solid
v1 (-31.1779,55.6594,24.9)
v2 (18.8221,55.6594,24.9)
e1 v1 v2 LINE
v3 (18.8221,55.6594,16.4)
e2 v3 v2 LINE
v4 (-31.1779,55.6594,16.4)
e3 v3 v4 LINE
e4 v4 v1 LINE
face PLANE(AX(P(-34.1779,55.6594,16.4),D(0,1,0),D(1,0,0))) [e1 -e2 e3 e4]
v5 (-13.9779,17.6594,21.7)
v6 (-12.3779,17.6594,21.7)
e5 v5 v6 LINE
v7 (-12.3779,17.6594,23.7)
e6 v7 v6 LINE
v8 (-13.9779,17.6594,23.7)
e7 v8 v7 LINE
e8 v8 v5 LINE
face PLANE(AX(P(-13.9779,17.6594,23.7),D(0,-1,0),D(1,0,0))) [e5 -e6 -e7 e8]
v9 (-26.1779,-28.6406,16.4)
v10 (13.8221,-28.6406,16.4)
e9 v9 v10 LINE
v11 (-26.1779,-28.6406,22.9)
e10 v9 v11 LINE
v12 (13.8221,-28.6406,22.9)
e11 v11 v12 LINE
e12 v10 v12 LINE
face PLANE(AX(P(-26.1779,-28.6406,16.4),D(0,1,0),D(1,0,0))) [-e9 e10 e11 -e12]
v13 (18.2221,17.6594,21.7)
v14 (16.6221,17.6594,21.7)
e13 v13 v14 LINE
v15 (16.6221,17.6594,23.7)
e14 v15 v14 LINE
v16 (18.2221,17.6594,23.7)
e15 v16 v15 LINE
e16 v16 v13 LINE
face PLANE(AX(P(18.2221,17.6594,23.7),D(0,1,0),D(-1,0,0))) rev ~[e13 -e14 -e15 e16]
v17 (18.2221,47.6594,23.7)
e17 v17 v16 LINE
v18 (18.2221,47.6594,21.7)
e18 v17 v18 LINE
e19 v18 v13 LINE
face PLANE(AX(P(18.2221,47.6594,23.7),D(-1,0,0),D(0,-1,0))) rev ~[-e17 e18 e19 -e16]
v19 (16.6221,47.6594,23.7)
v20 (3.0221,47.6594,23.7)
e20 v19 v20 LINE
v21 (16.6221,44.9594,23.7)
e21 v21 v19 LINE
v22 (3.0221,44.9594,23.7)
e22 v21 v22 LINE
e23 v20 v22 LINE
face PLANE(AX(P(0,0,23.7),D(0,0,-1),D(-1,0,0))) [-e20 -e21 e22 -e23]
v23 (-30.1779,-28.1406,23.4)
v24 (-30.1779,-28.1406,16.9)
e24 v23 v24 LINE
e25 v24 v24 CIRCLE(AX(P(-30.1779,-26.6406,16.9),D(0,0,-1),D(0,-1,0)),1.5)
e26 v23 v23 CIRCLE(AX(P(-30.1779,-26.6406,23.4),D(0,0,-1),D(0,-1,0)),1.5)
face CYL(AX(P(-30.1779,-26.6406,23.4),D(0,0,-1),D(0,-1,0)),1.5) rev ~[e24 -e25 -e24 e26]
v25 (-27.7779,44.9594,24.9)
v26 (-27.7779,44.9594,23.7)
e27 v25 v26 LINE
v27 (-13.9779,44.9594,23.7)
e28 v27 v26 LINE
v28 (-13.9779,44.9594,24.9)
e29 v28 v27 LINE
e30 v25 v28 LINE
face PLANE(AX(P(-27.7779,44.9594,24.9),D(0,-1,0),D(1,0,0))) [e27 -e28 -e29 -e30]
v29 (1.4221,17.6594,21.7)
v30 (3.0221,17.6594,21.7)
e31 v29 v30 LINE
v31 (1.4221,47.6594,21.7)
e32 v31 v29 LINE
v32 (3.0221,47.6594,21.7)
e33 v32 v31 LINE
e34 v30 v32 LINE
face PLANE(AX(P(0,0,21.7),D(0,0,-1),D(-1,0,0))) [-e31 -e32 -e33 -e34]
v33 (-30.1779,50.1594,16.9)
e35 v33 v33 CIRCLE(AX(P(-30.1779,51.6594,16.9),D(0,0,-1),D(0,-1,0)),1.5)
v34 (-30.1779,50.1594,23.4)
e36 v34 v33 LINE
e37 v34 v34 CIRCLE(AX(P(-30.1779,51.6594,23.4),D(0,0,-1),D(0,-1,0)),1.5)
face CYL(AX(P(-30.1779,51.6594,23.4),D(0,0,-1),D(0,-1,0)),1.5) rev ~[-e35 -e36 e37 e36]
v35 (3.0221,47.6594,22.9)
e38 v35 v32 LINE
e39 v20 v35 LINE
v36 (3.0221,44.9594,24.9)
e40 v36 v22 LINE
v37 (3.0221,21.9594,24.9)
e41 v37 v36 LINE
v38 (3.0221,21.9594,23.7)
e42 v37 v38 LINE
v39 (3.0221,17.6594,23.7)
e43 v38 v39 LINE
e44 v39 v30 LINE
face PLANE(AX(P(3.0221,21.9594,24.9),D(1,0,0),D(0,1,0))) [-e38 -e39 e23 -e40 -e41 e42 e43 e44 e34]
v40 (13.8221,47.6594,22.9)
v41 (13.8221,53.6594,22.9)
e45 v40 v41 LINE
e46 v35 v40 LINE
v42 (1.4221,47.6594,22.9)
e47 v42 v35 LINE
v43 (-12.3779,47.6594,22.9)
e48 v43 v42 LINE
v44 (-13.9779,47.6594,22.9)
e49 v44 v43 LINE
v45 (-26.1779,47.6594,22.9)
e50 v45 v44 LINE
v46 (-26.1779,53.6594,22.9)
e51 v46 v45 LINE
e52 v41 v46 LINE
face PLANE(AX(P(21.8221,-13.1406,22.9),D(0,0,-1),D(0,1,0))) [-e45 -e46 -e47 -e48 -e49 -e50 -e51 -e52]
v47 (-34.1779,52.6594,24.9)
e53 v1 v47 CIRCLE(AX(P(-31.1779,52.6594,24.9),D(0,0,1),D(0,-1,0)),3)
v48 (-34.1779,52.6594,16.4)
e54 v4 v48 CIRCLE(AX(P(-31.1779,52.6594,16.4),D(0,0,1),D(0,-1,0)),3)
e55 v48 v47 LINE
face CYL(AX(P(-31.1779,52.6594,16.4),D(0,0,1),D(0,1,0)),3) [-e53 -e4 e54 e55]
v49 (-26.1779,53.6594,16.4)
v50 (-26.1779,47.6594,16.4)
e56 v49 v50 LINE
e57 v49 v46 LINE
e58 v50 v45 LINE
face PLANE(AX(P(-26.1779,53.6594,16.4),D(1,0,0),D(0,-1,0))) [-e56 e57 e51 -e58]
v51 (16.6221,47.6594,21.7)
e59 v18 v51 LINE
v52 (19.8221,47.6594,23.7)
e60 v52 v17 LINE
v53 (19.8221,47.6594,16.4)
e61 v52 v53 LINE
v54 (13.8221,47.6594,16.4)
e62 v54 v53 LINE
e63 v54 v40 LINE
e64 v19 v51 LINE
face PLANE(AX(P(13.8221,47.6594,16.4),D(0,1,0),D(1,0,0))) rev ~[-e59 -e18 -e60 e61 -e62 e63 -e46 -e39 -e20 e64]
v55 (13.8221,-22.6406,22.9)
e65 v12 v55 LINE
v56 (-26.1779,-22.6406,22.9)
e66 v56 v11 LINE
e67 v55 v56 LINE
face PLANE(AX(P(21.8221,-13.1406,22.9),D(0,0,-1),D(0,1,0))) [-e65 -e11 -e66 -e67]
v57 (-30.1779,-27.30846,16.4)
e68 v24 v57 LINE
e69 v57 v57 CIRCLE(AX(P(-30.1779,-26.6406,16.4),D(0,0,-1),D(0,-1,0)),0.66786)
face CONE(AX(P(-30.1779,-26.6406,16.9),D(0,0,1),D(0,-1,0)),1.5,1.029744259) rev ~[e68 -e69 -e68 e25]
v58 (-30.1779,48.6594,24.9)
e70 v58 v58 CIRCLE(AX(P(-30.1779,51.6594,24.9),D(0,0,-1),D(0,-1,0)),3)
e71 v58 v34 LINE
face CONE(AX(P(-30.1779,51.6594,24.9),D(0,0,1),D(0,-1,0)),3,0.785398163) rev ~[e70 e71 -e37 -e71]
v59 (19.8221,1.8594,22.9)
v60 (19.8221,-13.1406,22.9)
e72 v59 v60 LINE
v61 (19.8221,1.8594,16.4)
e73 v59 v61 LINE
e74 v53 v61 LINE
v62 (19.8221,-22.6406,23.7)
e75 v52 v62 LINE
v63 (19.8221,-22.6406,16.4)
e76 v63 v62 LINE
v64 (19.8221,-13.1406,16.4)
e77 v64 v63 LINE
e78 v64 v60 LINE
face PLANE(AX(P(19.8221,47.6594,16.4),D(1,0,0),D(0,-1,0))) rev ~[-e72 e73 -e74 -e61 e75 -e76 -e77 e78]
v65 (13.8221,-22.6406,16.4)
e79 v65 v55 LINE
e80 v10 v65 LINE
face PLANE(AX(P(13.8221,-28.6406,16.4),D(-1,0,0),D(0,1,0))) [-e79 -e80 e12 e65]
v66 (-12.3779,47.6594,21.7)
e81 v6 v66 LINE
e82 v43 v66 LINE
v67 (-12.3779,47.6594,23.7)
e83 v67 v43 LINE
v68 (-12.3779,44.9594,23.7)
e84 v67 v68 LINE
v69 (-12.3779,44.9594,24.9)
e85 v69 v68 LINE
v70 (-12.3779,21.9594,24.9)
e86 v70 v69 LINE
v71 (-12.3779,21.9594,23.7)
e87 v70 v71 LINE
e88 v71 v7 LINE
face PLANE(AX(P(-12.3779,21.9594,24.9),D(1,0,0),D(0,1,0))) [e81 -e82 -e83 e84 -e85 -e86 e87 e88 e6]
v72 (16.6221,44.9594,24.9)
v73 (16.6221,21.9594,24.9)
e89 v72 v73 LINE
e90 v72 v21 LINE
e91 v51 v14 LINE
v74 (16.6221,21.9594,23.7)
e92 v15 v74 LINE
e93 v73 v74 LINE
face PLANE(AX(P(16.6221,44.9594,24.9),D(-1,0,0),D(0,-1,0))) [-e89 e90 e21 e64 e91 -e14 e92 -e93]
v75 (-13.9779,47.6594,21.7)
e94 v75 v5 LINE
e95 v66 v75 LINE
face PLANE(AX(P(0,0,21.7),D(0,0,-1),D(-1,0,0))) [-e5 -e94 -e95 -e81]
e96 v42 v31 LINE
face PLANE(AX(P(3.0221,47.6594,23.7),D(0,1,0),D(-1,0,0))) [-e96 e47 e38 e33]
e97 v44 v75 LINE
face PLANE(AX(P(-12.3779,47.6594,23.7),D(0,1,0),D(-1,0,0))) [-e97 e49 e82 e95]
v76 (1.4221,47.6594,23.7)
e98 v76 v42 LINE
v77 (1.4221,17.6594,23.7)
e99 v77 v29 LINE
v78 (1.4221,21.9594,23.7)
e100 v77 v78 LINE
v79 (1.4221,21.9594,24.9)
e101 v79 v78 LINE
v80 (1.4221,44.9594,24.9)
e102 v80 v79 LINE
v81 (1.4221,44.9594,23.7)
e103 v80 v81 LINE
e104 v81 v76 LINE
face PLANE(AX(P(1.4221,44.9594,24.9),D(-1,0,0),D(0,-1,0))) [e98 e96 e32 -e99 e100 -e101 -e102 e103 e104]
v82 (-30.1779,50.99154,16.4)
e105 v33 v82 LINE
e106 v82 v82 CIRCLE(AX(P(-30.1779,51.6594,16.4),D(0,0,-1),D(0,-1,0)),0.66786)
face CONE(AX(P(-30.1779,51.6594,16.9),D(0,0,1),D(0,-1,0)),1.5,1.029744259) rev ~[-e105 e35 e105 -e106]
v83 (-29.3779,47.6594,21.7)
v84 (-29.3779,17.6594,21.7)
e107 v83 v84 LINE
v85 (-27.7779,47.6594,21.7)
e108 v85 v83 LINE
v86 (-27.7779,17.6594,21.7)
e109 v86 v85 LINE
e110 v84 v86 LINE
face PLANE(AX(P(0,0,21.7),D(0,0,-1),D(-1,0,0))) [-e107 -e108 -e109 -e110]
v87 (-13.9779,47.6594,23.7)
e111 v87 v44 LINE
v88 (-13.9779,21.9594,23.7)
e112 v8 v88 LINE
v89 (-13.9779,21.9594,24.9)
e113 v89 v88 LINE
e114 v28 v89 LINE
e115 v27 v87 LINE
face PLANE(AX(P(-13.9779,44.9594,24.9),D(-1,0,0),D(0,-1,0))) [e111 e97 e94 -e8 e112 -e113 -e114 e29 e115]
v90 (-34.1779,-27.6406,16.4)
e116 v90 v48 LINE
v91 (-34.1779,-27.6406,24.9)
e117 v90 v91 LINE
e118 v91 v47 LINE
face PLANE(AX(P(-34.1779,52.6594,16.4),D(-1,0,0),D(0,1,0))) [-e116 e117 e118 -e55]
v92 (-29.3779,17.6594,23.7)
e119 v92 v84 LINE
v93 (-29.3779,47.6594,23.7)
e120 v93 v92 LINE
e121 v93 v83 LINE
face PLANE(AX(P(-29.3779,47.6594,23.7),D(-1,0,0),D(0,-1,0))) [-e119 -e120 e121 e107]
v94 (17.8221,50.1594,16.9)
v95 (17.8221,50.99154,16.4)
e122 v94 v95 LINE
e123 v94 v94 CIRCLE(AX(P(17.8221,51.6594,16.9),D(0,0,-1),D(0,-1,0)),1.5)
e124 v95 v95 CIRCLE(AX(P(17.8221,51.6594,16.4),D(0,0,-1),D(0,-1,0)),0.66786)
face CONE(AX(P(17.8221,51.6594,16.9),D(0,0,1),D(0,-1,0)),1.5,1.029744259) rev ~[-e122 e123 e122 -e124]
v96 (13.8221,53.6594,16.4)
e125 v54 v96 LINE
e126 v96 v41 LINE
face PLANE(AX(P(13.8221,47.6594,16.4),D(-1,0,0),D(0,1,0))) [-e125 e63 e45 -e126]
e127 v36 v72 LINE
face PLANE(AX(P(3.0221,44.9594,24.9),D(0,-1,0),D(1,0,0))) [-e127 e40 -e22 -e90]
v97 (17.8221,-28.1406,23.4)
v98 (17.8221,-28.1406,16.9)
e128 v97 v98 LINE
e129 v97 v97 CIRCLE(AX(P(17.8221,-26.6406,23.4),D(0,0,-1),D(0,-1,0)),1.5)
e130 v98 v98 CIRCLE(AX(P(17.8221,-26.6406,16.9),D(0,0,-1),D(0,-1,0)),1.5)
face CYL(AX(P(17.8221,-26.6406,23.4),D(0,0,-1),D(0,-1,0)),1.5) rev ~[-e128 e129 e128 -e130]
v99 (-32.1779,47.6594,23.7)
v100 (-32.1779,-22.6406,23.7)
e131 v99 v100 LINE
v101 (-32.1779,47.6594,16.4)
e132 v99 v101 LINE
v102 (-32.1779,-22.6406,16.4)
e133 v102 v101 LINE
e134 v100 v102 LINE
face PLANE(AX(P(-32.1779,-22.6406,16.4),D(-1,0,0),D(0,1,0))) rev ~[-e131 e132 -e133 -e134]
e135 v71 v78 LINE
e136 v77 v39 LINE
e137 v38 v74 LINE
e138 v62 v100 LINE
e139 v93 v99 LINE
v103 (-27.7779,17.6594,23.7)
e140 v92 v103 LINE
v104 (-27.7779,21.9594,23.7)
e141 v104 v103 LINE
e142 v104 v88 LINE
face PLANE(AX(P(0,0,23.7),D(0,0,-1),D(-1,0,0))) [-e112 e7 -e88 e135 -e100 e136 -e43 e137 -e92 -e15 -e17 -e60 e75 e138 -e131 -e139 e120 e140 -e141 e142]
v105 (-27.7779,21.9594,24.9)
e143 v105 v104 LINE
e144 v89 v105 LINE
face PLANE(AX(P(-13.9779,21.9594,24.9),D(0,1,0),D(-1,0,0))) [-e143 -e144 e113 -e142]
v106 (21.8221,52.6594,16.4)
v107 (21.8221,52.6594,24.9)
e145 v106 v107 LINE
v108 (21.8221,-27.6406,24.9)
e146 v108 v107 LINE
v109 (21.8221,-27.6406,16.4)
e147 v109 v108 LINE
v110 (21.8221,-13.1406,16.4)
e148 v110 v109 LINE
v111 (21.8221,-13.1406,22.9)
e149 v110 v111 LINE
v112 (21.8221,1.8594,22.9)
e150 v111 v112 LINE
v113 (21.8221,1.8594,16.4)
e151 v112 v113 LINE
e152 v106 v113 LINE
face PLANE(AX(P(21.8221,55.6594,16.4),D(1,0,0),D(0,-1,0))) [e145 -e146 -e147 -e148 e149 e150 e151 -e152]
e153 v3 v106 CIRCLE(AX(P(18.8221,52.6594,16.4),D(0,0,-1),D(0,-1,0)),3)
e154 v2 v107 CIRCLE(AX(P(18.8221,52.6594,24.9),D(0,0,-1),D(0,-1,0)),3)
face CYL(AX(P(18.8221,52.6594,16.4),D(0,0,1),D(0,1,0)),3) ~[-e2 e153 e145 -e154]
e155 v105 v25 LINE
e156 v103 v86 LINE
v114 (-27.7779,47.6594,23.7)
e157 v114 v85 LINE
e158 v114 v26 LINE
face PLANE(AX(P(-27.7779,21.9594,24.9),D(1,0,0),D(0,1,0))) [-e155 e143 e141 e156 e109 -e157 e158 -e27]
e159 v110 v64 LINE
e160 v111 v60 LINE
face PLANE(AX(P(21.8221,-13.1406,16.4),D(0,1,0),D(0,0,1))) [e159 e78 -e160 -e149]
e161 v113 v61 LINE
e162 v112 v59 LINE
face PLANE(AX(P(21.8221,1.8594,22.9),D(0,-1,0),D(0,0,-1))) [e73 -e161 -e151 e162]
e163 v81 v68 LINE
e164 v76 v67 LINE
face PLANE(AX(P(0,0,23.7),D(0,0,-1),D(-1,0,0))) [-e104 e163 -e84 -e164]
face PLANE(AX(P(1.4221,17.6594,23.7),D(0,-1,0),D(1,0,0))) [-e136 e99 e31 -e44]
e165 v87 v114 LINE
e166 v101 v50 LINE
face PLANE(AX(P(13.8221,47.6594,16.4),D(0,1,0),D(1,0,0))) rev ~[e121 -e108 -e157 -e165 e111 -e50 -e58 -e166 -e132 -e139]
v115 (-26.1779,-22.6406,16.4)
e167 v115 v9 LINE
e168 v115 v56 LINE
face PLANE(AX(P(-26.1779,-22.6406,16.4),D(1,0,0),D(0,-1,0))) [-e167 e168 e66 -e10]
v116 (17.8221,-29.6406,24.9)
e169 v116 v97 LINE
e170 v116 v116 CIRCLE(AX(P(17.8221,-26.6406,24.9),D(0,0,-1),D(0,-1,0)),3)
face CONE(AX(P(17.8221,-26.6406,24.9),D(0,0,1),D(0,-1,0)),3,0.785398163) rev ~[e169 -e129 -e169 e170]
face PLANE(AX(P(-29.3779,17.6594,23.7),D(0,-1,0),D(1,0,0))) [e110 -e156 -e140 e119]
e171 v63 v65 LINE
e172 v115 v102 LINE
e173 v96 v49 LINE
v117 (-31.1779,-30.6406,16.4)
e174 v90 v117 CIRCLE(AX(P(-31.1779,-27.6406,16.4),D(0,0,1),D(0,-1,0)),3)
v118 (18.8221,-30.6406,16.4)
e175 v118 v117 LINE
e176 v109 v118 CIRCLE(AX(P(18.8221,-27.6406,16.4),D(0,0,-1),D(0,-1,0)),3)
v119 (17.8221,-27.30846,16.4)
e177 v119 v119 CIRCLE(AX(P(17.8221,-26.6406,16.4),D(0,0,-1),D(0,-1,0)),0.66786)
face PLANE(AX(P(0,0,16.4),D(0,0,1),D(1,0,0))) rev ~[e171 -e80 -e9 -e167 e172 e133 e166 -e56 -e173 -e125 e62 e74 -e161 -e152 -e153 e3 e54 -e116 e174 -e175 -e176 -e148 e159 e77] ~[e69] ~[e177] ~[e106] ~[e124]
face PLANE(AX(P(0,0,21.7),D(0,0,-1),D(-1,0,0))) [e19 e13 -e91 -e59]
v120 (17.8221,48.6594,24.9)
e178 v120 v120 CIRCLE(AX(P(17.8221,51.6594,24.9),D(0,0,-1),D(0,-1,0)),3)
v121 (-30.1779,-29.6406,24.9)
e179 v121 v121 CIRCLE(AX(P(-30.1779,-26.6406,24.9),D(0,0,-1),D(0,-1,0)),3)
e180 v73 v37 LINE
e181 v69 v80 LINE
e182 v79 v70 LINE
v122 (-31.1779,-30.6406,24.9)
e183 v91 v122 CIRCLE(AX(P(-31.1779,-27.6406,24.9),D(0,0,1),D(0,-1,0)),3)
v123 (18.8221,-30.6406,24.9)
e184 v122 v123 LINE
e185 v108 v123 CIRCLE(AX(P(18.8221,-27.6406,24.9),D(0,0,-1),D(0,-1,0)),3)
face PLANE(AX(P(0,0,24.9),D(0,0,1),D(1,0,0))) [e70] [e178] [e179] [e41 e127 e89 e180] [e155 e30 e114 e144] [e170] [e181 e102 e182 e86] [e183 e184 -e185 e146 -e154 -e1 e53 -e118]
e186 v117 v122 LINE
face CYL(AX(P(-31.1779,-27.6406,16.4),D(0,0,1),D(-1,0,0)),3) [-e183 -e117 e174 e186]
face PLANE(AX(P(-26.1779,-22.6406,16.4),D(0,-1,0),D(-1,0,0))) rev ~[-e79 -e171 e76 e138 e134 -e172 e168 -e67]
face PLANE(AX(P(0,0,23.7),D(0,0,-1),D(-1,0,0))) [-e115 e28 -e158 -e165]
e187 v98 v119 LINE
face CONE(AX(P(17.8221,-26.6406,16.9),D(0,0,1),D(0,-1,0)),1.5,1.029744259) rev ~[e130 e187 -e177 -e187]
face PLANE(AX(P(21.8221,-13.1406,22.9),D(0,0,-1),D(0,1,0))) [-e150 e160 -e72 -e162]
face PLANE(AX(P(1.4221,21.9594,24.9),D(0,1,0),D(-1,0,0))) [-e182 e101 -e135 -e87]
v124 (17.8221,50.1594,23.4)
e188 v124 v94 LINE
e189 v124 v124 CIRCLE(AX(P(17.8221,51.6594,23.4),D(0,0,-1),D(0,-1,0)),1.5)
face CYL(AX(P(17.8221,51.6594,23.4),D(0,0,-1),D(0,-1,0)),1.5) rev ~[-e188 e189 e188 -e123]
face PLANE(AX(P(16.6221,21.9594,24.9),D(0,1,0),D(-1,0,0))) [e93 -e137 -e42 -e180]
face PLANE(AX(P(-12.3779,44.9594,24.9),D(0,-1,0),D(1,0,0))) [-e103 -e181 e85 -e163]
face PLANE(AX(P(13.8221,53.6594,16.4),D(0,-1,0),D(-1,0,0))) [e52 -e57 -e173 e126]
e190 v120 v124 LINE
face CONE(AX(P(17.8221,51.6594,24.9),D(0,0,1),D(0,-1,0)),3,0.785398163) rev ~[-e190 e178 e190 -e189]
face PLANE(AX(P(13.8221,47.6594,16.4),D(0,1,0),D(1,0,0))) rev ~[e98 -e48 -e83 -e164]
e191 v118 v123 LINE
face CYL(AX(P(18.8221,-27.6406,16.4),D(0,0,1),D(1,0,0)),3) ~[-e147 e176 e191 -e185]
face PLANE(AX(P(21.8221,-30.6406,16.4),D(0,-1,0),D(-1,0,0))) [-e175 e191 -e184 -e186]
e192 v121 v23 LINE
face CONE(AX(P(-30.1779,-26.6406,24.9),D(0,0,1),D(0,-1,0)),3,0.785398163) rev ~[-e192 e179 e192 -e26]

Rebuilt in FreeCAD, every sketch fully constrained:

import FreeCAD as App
import Part
import Sketcher


def edges_at(feature, points):
    """Names of the edges that pass closest to the given points."""
    edges = feature.Shape.Edges
    near = lambda p: min(range(len(edges)), key=lambda i: edges[i].distToShape(Part.Vertex(*p))[0])
    return sorted({f"Edge{near(p) + 1}" for p in points})


def add_polygon(sketch, points):
    """Adds a closed chain of lines whose ends are joined by coincident constraints."""
    first, n = sketch.GeometryCount, len(points)
    for a, b in zip(points, points[1:] + points[:1]):
        sketch.addGeometry(Part.LineSegment(App.Vector(*a, 0), App.Vector(*b, 0)), False)
    for i in range(n):
        sketch.addConstraint(Sketcher.Constraint("Coincident", first + i, 2, first + (i + 1) % n, 1))

doc = App.newDocument("Part")
body = doc.addObject("PartDesign::Body", "Body")

# Sketch on XY plane
sketch1 = doc.addObject("Sketcher::SketchObject", "Sketch")
body.addObject(sketch1)
sketch1.AttachmentSupport = (doc.XY_Plane, [""])
sketch1.MapMode = "FlatFace"
add_polygon(sketch1, [(22, 56), (-34, 56), (-34, -31), (22, -31)])  # lines 0-3
sketch1.addConstraint([
    Sketcher.Constraint("Horizontal", 0),
    Sketcher.Constraint("Vertical", 1),
    Sketcher.Constraint("Horizontal", 2),
    Sketcher.Constraint("Vertical", 3),
    Sketcher.Constraint("DistanceX", 0, 2, 0, 1, 56.0),
    Sketcher.Constraint("DistanceY", 1, 2, 1, 1, 86.3),
    Sketcher.Constraint("DistanceX", 0, 2, -1, 1, 34.178),
    Sketcher.Constraint("DistanceY", -1, 1, 0, 2, 55.6594),
])
pad1 = doc.addObject("PartDesign::Pad", "Pad")
body.addObject(pad1)
pad1.Profile = sketch1
pad1.Length = 2

# Sketch on XY plane
sketch2 = doc.addObject("Sketcher::SketchObject", "Sketch001")
body.addObject(sketch2)
sketch2.AttachmentSupport = (doc.XY_Plane, [""])
sketch2.MapMode = "FlatFace"
sketch2.AttachmentOffset = App.Placement(App.Vector(0, 0, 2), App.Rotation())
add_polygon(sketch2, [(22, 56), (-34, 56), (-34, -31), (22, -31)])  # lines 0-3
add_polygon(sketch2, [(-32, -29), (-32, 54), (20, 54), (20, -29)])  # lines 4-7
sketch2.addConstraint([
    Sketcher.Constraint("Horizontal", 0),
    Sketcher.Constraint("Vertical", 1),
    Sketcher.Constraint("Horizontal", 2),
    Sketcher.Constraint("Vertical", 3),
    Sketcher.Constraint("Vertical", 4),
    Sketcher.Constraint("Horizontal", 5),
    Sketcher.Constraint("Vertical", 6),
    Sketcher.Constraint("Horizontal", 7),
    Sketcher.Constraint("DistanceX", 0, 2, 4, 2, 2.0),
    Sketcher.Constraint("DistanceY", 4, 2, 0, 2, 2.0),
    Sketcher.Constraint("DistanceX", 5, 2, 3, 2, 2.0),
    Sketcher.Constraint("DistanceY", 2, 2, 6, 2, 2.0),
    Sketcher.Constraint("DistanceX", 0, 2, 0, 1, 56.0),
    Sketcher.Constraint("DistanceY", 1, 2, 1, 1, 86.3),
    Sketcher.Constraint("DistanceX", 0, 2, -1, 1, 34.178),
    Sketcher.Constraint("DistanceY", -1, 1, 0, 2, 55.6594),
])
pad2 = doc.addObject("PartDesign::Pad", "Pad001")
body.addObject(pad2)
pad2.Profile = sketch2
pad2.Length = 14.4

# Sketch on XY plane
sketch3 = doc.addObject("Sketcher::SketchObject", "Sketch002")
body.addObject(sketch3)
sketch3.AttachmentSupport = (doc.XY_Plane, [""])
sketch3.MapMode = "FlatFace"
sketch3.AttachmentOffset = App.Placement(App.Vector(0, 0, 2), App.Rotation())
add_polygon(sketch3, [(-26, 56), (-34, 56), (-34, 48), (-26, 48)])  # lines 0-3
add_polygon(sketch3, [(22, 48), (22, 56), (14, 56), (14, 48)])  # lines 4-7
add_polygon(sketch3, [(-34, -23), (-34, -31), (-26, -31), (-26, -23)])  # lines 8-11
add_polygon(sketch3, [(14, -23), (14, -31), (22, -31), (22, -23)])  # lines 12-15
sketch3.addConstraint([
    Sketcher.Constraint("Horizontal", 0),
    Sketcher.Constraint("Vertical", 1),
    Sketcher.Constraint("Horizontal", 2),
    Sketcher.Constraint("Vertical", 3),
    Sketcher.Constraint("Vertical", 4),
    Sketcher.Constraint("Horizontal", 5),
    Sketcher.Constraint("Vertical", 6),
    Sketcher.Constraint("Horizontal", 7),
    Sketcher.Constraint("Vertical", 8),
    Sketcher.Constraint("Horizontal", 9),
    Sketcher.Constraint("Vertical", 10),
    Sketcher.Constraint("Horizontal", 11),
    Sketcher.Constraint("Vertical", 12),
    Sketcher.Constraint("Horizontal", 13),
    Sketcher.Constraint("Vertical", 14),
    Sketcher.Constraint("Horizontal", 15),
    Sketcher.Constraint("Horizontal", 3, 2, 4, 2),
    Sketcher.Constraint("Horizontal", 2, 2, 6, 2),
    Sketcher.Constraint("Horizontal", 9, 2, 12, 2),
    Sketcher.Constraint("Horizontal", 11, 2, 14, 2),
    Sketcher.Constraint("Vertical", 1, 2, 8, 2),
    Sketcher.Constraint("Vertical", 3, 2, 9, 2),
    Sketcher.Constraint("Vertical", 6, 2, 12, 2),
    Sketcher.Constraint("Vertical", 7, 2, 13, 2),
    Sketcher.Constraint("Equal", 2, 5),
    Sketcher.Constraint("Equal", 15, 1),
    Sketcher.Constraint("Equal", 6, 8),
    Sketcher.Constraint("DistanceX", 0, 2, 0, 1, 8.0),
    Sketcher.Constraint("DistanceX", 3, 2, 4, 2, 48.0),
    Sketcher.Constraint("DistanceY", 8, 2, 1, 2, 78.3),
    Sketcher.Constraint("DistanceX", 0, 2, -1, 1, 34.178),
    Sketcher.Constraint("DistanceY", -1, 1, 0, 2, 55.6594),
])
pad3 = doc.addObject("PartDesign::Pad", "Pad002")
body.addObject(pad3)
pad3.Profile = sketch3
pad3.Length = 14.4

# Sketch on XY plane
sketch4 = doc.addObject("Sketcher::SketchObject", "Sketch003")
body.addObject(sketch4)
sketch4.AttachmentSupport = (doc.XY_Plane, [""])
sketch4.MapMode = "FlatFace"
sketch4.AttachmentOffset = App.Placement(App.Vector(0, 0, 16.4), App.Rotation())
sketch4.addGeometry([
    Part.Circle(App.Vector(-30.2, 51.7, 0), App.Vector(0, 0, 1), 1.5),
    Part.Circle(App.Vector(17.8, 51.7, 0), App.Vector(0, 0, 1), 1.5),
    Part.Circle(App.Vector(-30.6, -26.6, 0), App.Vector(0, 0, 1), 1.5),
    Part.Circle(App.Vector(17.8, -26.6, 0), App.Vector(0, 0, 1), 1.5),
], False)
sketch4.addConstraint([
    Sketcher.Constraint("Equal", 0, 1),
    Sketcher.Constraint("Equal", 1, 2),
    Sketcher.Constraint("Equal", 2, 3),
    Sketcher.Constraint("Horizontal", 0, 3, 1, 3),
    Sketcher.Constraint("Horizontal", 2, 3, 3, 3),
    Sketcher.Constraint("Vertical", 1, 3, 3, 3),
    Sketcher.Constraint("Diameter", 0, 3.0),
    Sketcher.Constraint("DistanceX", 0, 3, 1, 3, 48.0),
    Sketcher.Constraint("DistanceY", 2, 3, 0, 3, 78.3),
    Sketcher.Constraint("DistanceX", 0, 3, -1, 1, 30.178),
    Sketcher.Constraint("DistanceY", -1, 1, 0, 3, 51.6594),
    Sketcher.Constraint("DistanceX", 2, 3, -1, 1, 30.5754),
])
doc.recompute()
hole = doc.addObject("PartDesign::Hole", "Hole")
body.addObject(hole)
hole.Profile = sketch4
hole.ThreadType = "None"
hole.Diameter = 3
hole.DepthType = "Dimension"
hole.Depth = 6
hole.DrillPoint = "Angled"
hole.DrillPointAngle = 118
doc.recompute()

fillet = doc.addObject("PartDesign::Fillet", "Fillet")
body.addObject(fillet)
fillet.Base = (hole, edges_at(hole, [
    (-34.178, 55.659, 8.2),
    (21.822, 55.659, 8.2),
    (-34.178, -30.641, 8.2),
    (21.822, -30.641, 8.2),
]))
fillet.Radius = 3

# Sketch on XY plane
sketch5 = doc.addObject("Sketcher::SketchObject", "Sketch004")
body.addObject(sketch5)
sketch5.AttachmentSupport = (doc.XY_Plane, [""])
sketch5.MapMode = "FlatFace"
sketch5.AttachmentOffset = App.Placement(App.Vector(0, 0, 2), App.Rotation())
add_polygon(sketch5, [(19.8, -22.6), (19.8, -18.3), (-32.2, -18.3), (-32.2, -22.6)])  # lines 0-3
add_polygon(sketch5, [(19.8, 47.7), (-32.2, 47.7), (-32.2, 43.4), (19.8, 43.4)])  # lines 4-7
sketch5.addConstraint([
    Sketcher.Constraint("Vertical", 0),
    Sketcher.Constraint("Horizontal", 1),
    Sketcher.Constraint("Vertical", 2),
    Sketcher.Constraint("Horizontal", 3),
    Sketcher.Constraint("Horizontal", 4),
    Sketcher.Constraint("Vertical", 5),
    Sketcher.Constraint("Horizontal", 6),
    Sketcher.Constraint("Vertical", 7),
    Sketcher.Constraint("Vertical", 2, 2, 4, 2),
    Sketcher.Constraint("Vertical", 3, 2, 6, 2),
    Sketcher.Constraint("Equal", 2, 5),
    Sketcher.Constraint("DistanceY", 0, 1, 0, 2, 4.3),
    Sketcher.Constraint("DistanceX", 1, 2, 1, 1, 52.0),
    Sketcher.Constraint("DistanceY", 1, 2, 4, 2, 66.0),
    Sketcher.Constraint("DistanceX", -1, 1, 0, 2, 19.822),
    Sketcher.Constraint("DistanceY", 0, 2, -1, 1, 18.3406),
])
pad4 = doc.addObject("PartDesign::Pad", "Pad003")
body.addObject(pad4)
pad4.Profile = sketch5
pad4.Length = 2.5

# Sketch on XY plane
sketch6 = doc.addObject("Sketcher::SketchObject", "Sketch005")
body.addObject(sketch6)
sketch6.AttachmentSupport = (doc.XY_Plane, [""])
sketch6.MapMode = "FlatFace"
sketch6.AttachmentOffset = App.Placement(App.Vector(0, 0, 16.4), App.Rotation())
add_polygon(sketch6, [(22, 56), (-34, 56), (-34, -31), (22, -31)])  # lines 0-3
sketch6.addConstraint([
    Sketcher.Constraint("Horizontal", 0),
    Sketcher.Constraint("Vertical", 1),
    Sketcher.Constraint("Horizontal", 2),
    Sketcher.Constraint("Vertical", 3),
    Sketcher.Constraint("DistanceX", 0, 2, 0, 1, 56.0),
    Sketcher.Constraint("DistanceY", 1, 2, 1, 1, 86.3),
    Sketcher.Constraint("DistanceX", 0, 2, -1, 1, 34.178),
    Sketcher.Constraint("DistanceY", -1, 1, 0, 2, 55.6594),
])
pad5 = doc.addObject("PartDesign::Pad", "Pad004")
body.addObject(pad5)
pad5.Profile = sketch6
pad5.Length = 8.5

# Sketch on XZ plane
sketch7 = doc.addObject("Sketcher::SketchObject", "Sketch006")
body.addObject(sketch7)
sketch7.AttachmentSupport = (doc.XZ_Plane, [""])
sketch7.MapMode = "FlatFace"
sketch7.AttachmentOffset = App.Placement(App.Vector(0, 0, 30.6406), App.Rotation())
add_polygon(sketch7, [(22, 16), (-34, 16), (-34, 0), (22, 0)])  # lines 0-3
sketch7.addConstraint([
    Sketcher.Constraint("Horizontal", 0),
    Sketcher.Constraint("Vertical", 1),
    Sketcher.Constraint("Horizontal", 2),
    Sketcher.Constraint("Vertical", 3),
    Sketcher.Constraint("PointOnObject", 1, 2, -1),
    Sketcher.Constraint("DistanceX", 0, 2, 0, 1, 56.0),
    Sketcher.Constraint("DistanceY", 1, 2, 1, 1, 16.4),
    Sketcher.Constraint("DistanceX", 0, 2, -1, 1, 34.178),
])
pocket1 = doc.addObject("PartDesign::Pocket", "Pocket")
body.addObject(pocket1)
pocket1.Profile = sketch7
pocket1.Length = 300
doc.recompute()

fillet2 = doc.addObject("PartDesign::Fillet", "Fillet001")
body.addObject(fillet2)
fillet2.Base = (pocket1, edges_at(pocket1, [
    (-34.178, -30.641, 20.65),
    (21.822, -30.641, 20.65),
    (-34.178, 55.659, 20.65),
    (21.822, 55.659, 20.65),
]))
fillet2.Radius = 3

# Sketch on XY plane
sketch8 = doc.addObject("Sketcher::SketchObject", "Sketch007")
body.addObject(sketch8)
sketch8.AttachmentSupport = (doc.XY_Plane, [""])
sketch8.MapMode = "FlatFace"
sketch8.AttachmentOffset = App.Placement(App.Vector(0, 0, 16.4), App.Rotation())
add_polygon(sketch8, [(14, -29), (-26, -29), (-26, -23), (-32, -23), (-32, 48), (-26, 48), (-26, 54), (14, 54), (14, 48), (20, 48), (20, -23), (14, -23)])  # lines 0-11
sketch8.addConstraint([
    Sketcher.Constraint("Horizontal", 0),
    Sketcher.Constraint("Vertical", 1),
    Sketcher.Constraint("Horizontal", 2),
    Sketcher.Constraint("Vertical", 3),
    Sketcher.Constraint("Horizontal", 4),
    Sketcher.Constraint("Vertical", 5),
    Sketcher.Constraint("Horizontal", 6),
    Sketcher.Constraint("Vertical", 7),
    Sketcher.Constraint("Horizontal", 8),
    Sketcher.Constraint("Vertical", 9),
    Sketcher.Constraint("Horizontal", 10),
    Sketcher.Constraint("Vertical", 11),
    Sketcher.Constraint("Horizontal", 4, 2, 7, 2),
    Sketcher.Constraint("Horizontal", 2, 2, 9, 2),
    Sketcher.Constraint("Vertical", 1, 2, 4, 2),
    Sketcher.Constraint("Vertical", 7, 2, 10, 2),
    Sketcher.Constraint("Equal", 4, 8),
    Sketcher.Constraint("Equal", 10, 1),
    Sketcher.Constraint("Equal", 1, 5),
    Sketcher.Constraint("DistanceX", 0, 2, 0, 1, 40.0),
    Sketcher.Constraint("DistanceX", 2, 2, 2, 1, 6.0),
    Sketcher.Constraint("DistanceY", 3, 1, 3, 2, 70.3),
    Sketcher.Constraint("DistanceX", 0, 2, -1, 1, 26.178),
    Sketcher.Constraint("DistanceY", 0, 2, -1, 1, 28.6406),
])
pocket2 = doc.addObject("PartDesign::Pocket", "Pocket001")
body.addObject(pocket2)
pocket2.Profile = sketch8
pocket2.Length = 6.5
pocket2.Reversed = True

# Sketch on XY plane
sketch9 = doc.addObject("Sketcher::SketchObject", "Sketch008")
body.addObject(sketch9)
sketch9.AttachmentSupport = (doc.XY_Plane, [""])
sketch9.MapMode = "FlatFace"
sketch9.AttachmentOffset = App.Placement(App.Vector(0, 0, 24.9), App.Rotation())
sketch9.addGeometry([
    Part.Circle(App.Vector(-30.2, 51.7, 0), App.Vector(0, 0, 1), 1.5),
    Part.Circle(App.Vector(17.8, 51.7, 0), App.Vector(0, 0, 1), 1.5),
    Part.Circle(App.Vector(-30.2, -26.6, 0), App.Vector(0, 0, 1), 1.5),
    Part.Circle(App.Vector(17.8, -26.6, 0), App.Vector(0, 0, 1), 1.5),
], False)
sketch9.addConstraint([
    Sketcher.Constraint("Equal", 0, 1),
    Sketcher.Constraint("Equal", 1, 2),
    Sketcher.Constraint("Equal", 2, 3),
    Sketcher.Constraint("Horizontal", 0, 3, 1, 3),
    Sketcher.Constraint("Horizontal", 2, 3, 3, 3),
    Sketcher.Constraint("Vertical", 0, 3, 2, 3),
    Sketcher.Constraint("Vertical", 1, 3, 3, 3),
    Sketcher.Constraint("Diameter", 0, 3.0),
    Sketcher.Constraint("DistanceX", 0, 3, 1, 3, 48.0),
    Sketcher.Constraint("DistanceY", 2, 3, 0, 3, 78.3),
    Sketcher.Constraint("DistanceX", 0, 3, -1, 1, 30.178),
    Sketcher.Constraint("DistanceY", -1, 1, 0, 3, 51.6594),
])
doc.recompute()
hole2 = doc.addObject("PartDesign::Hole", "Hole001")
body.addObject(hole2)
hole2.Profile = sketch9
hole2.ThreadType = "None"
hole2.Diameter = 3
hole2.DepthType = "Dimension"
hole2.Depth = 8
hole2.DrillPoint = "Angled"
hole2.DrillPointAngle = 118
hole2.HoleCutType = "Countersink"
hole2.HoleCutDiameter = 6
hole2.HoleCutCountersinkAngle = 90

# Sketch on YZ plane
sketch10 = doc.addObject("Sketcher::SketchObject", "Sketch009")
body.addObject(sketch10)
sketch10.AttachmentSupport = (doc.YZ_Plane, [""])
sketch10.MapMode = "FlatFace"
sketch10.AttachmentOffset = App.Placement(App.Vector(0, 0, 21.8221), App.Rotation())
add_polygon(sketch10, [(-13, 23), (-13, 16), (2, 16), (2, 23)])  # lines 0-3
sketch10.addConstraint([
    Sketcher.Constraint("Vertical", 0),
    Sketcher.Constraint("Horizontal", 1),
    Sketcher.Constraint("Vertical", 2),
    Sketcher.Constraint("Horizontal", 3),
    Sketcher.Constraint("DistanceY", 0, 2, 0, 1, 6.5),
    Sketcher.Constraint("DistanceX", 1, 1, 1, 2, 15.0),
    Sketcher.Constraint("DistanceY", -1, 1, 0, 2, 16.4),
    Sketcher.Constraint("DistanceX", 0, 2, -1, 1, 13.1406),
])
pocket3 = doc.addObject("PartDesign::Pocket", "Pocket002")
body.addObject(pocket3)
pocket3.Profile = sketch10
pocket3.Length = 6.5

# Sketch on XY plane
sketch11 = doc.addObject("Sketcher::SketchObject", "Sketch010")
body.addObject(sketch11)
sketch11.AttachmentSupport = (doc.XY_Plane, [""])
sketch11.MapMode = "FlatFace"
sketch11.AttachmentOffset = App.Placement(App.Vector(0, 0, 22.9), App.Rotation())
add_polygon(sketch11, [(-32, -23), (-32, 48), (20, 48), (20, -23)])  # lines 0-3
sketch11.addConstraint([
    Sketcher.Constraint("Vertical", 0),
    Sketcher.Constraint("Horizontal", 1),
    Sketcher.Constraint("Vertical", 2),
    Sketcher.Constraint("Horizontal", 3),
    Sketcher.Constraint("DistanceX", 1, 1, 1, 2, 52.0),
    Sketcher.Constraint("DistanceY", 0, 1, 0, 2, 70.3),
    Sketcher.Constraint("DistanceX", 0, 2, -1, 1, 32.178),
    Sketcher.Constraint("DistanceY", -1, 1, 0, 2, 47.6594),
])
pocket4 = doc.addObject("PartDesign::Pocket", "Pocket003")
body.addObject(pocket4)
pocket4.Profile = sketch11
pocket4.Length = 0.8
pocket4.Reversed = True

# Sketch on XY plane
sketch12 = doc.addObject("Sketcher::SketchObject", "Sketch011")
body.addObject(sketch12)
sketch12.AttachmentSupport = (doc.XY_Plane, [""])
sketch12.MapMode = "FlatFace"
sketch12.AttachmentOffset = App.Placement(App.Vector(0, 0, 24.9), App.Rotation())
add_polygon(sketch12, [(-14, 45), (-28, 45), (-28, 22), (-14, 22)])  # lines 0-3
add_polygon(sketch12, [(1, 45), (-12, 45), (-12, 22), (1, 22)])  # lines 4-7
add_polygon(sketch12, [(17, 45), (3, 45), (3, 22), (17, 22)])  # lines 8-11
sketch12.addConstraint([
    Sketcher.Constraint("Horizontal", 0),
    Sketcher.Constraint("Vertical", 1),
    Sketcher.Constraint("Horizontal", 2),
    Sketcher.Constraint("Vertical", 3),
    Sketcher.Constraint("Horizontal", 4),
    Sketcher.Constraint("Vertical", 5),
    Sketcher.Constraint("Horizontal", 6),
    Sketcher.Constraint("Vertical", 7),
    Sketcher.Constraint("Horizontal", 8),
    Sketcher.Constraint("Vertical", 9),
    Sketcher.Constraint("Horizontal", 10),
    Sketcher.Constraint("Vertical", 11),
    Sketcher.Constraint("Horizontal", 3, 2, 4, 2),
    Sketcher.Constraint("Horizontal", 2, 2, 5, 2),
    Sketcher.Constraint("Horizontal", 7, 2, 8, 2),
    Sketcher.Constraint("Horizontal", 6, 2, 9, 2),
    Sketcher.Constraint("Equal", 2, 4),
    Sketcher.Constraint("DistanceX", 0, 2, 0, 1, 13.8),
    Sketcher.Constraint("DistanceX", 8, 2, 8, 1, 13.6),
    Sketcher.Constraint("DistanceX", 3, 2, 4, 2, 1.6),
    Sketcher.Constraint("DistanceX", 7, 2, 8, 2, 1.6),
    Sketcher.Constraint("DistanceY", 1, 2, 1, 1, 23.0),
    Sketcher.Constraint("DistanceX", 0, 2, -1, 1, 27.778),
    Sketcher.Constraint("DistanceY", -1, 1, 0, 2, 44.9594),
])
pocket5 = doc.addObject("PartDesign::Pocket", "Pocket004")
body.addObject(pocket5)
pocket5.Profile = sketch12
pocket5.Length = 3

# Sketch on XY plane
sketch13 = doc.addObject("Sketcher::SketchObject", "Sketch012")
body.addObject(sketch13)
sketch13.AttachmentSupport = (doc.XY_Plane, [""])
sketch13.MapMode = "FlatFace"
sketch13.AttachmentOffset = App.Placement(App.Vector(0, 0, 23.7), App.Rotation())
add_polygon(sketch13, [(-14, 47.7), (-12.4, 47.7), (-12.4, 17.7), (-14, 17.7)])  # lines 0-3
add_polygon(sketch13, [(1.4, 47.7), (3, 47.7), (3, 17.7), (1.4, 17.7)])  # lines 4-7
sketch13.addConstraint([
    Sketcher.Constraint("Horizontal", 0),
    Sketcher.Constraint("Vertical", 1),
    Sketcher.Constraint("Horizontal", 2),
    Sketcher.Constraint("Vertical", 3),
    Sketcher.Constraint("Horizontal", 4),
    Sketcher.Constraint("Vertical", 5),
    Sketcher.Constraint("Horizontal", 6),
    Sketcher.Constraint("Vertical", 7),
    Sketcher.Constraint("Horizontal", 3, 2, 4, 2),
    Sketcher.Constraint("Horizontal", 2, 2, 5, 2),
    Sketcher.Constraint("Equal", 2, 4),
    Sketcher.Constraint("DistanceY", 1, 2, 1, 1, 30.0),
    Sketcher.Constraint("DistanceX", 0, 1, 0, 2, 1.6),
    Sketcher.Constraint("DistanceX", 3, 2, 4, 2, 17.0),
    Sketcher.Constraint("DistanceX", 0, 2, -1, 1, 12.378),
    Sketcher.Constraint("DistanceY", -1, 1, 0, 2, 47.6594),
])
pad6 = doc.addObject("PartDesign::Pad", "Pad005")
body.addObject(pad6)
pad6.Profile = sketch13
pad6.Length = 2
pad6.Reversed = True

# Sketch on XY plane
sketch14 = doc.addObject("Sketcher::SketchObject", "Sketch013")
body.addObject(sketch14)
sketch14.AttachmentSupport = (doc.XY_Plane, [""])
sketch14.MapMode = "FlatFace"
sketch14.AttachmentOffset = App.Placement(App.Vector(0, 0, 23.7), App.Rotation())
add_polygon(sketch14, [(16.6, 47.7), (18.2, 47.7), (18.2, 17.7), (16.6, 17.7)])  # lines 0-3
add_polygon(sketch14, [(-29.4, 47.7), (-27.8, 47.7), (-27.8, 17.7), (-29.4, 17.7)])  # lines 4-7
sketch14.addConstraint([
    Sketcher.Constraint("Horizontal", 0),
    Sketcher.Constraint("Vertical", 1),
    Sketcher.Constraint("Horizontal", 2),
    Sketcher.Constraint("Vertical", 3),
    Sketcher.Constraint("Horizontal", 4),
    Sketcher.Constraint("Vertical", 5),
    Sketcher.Constraint("Horizontal", 6),
    Sketcher.Constraint("Vertical", 7),
    Sketcher.Constraint("Horizontal", 3, 2, 4, 2),
    Sketcher.Constraint("Horizontal", 2, 2, 5, 2),
    Sketcher.Constraint("Equal", 2, 4),
    Sketcher.Constraint("DistanceX", 0, 1, 0, 2, 1.6),
    Sketcher.Constraint("DistanceY", 1, 2, 1, 1, 30.0),
    Sketcher.Constraint("DistanceX", 4, 2, 0, 2, 46.0),
    Sketcher.Constraint("DistanceX", -1, 1, 0, 2, 18.222),
    Sketcher.Constraint("DistanceY", -1, 1, 0, 2, 47.6594),
])
pad7 = doc.addObject("PartDesign::Pad", "Pad006")
body.addObject(pad7)
pad7.Profile = sketch14
pad7.Length = 2
pad7.Reversed = True

doc.recompute()
